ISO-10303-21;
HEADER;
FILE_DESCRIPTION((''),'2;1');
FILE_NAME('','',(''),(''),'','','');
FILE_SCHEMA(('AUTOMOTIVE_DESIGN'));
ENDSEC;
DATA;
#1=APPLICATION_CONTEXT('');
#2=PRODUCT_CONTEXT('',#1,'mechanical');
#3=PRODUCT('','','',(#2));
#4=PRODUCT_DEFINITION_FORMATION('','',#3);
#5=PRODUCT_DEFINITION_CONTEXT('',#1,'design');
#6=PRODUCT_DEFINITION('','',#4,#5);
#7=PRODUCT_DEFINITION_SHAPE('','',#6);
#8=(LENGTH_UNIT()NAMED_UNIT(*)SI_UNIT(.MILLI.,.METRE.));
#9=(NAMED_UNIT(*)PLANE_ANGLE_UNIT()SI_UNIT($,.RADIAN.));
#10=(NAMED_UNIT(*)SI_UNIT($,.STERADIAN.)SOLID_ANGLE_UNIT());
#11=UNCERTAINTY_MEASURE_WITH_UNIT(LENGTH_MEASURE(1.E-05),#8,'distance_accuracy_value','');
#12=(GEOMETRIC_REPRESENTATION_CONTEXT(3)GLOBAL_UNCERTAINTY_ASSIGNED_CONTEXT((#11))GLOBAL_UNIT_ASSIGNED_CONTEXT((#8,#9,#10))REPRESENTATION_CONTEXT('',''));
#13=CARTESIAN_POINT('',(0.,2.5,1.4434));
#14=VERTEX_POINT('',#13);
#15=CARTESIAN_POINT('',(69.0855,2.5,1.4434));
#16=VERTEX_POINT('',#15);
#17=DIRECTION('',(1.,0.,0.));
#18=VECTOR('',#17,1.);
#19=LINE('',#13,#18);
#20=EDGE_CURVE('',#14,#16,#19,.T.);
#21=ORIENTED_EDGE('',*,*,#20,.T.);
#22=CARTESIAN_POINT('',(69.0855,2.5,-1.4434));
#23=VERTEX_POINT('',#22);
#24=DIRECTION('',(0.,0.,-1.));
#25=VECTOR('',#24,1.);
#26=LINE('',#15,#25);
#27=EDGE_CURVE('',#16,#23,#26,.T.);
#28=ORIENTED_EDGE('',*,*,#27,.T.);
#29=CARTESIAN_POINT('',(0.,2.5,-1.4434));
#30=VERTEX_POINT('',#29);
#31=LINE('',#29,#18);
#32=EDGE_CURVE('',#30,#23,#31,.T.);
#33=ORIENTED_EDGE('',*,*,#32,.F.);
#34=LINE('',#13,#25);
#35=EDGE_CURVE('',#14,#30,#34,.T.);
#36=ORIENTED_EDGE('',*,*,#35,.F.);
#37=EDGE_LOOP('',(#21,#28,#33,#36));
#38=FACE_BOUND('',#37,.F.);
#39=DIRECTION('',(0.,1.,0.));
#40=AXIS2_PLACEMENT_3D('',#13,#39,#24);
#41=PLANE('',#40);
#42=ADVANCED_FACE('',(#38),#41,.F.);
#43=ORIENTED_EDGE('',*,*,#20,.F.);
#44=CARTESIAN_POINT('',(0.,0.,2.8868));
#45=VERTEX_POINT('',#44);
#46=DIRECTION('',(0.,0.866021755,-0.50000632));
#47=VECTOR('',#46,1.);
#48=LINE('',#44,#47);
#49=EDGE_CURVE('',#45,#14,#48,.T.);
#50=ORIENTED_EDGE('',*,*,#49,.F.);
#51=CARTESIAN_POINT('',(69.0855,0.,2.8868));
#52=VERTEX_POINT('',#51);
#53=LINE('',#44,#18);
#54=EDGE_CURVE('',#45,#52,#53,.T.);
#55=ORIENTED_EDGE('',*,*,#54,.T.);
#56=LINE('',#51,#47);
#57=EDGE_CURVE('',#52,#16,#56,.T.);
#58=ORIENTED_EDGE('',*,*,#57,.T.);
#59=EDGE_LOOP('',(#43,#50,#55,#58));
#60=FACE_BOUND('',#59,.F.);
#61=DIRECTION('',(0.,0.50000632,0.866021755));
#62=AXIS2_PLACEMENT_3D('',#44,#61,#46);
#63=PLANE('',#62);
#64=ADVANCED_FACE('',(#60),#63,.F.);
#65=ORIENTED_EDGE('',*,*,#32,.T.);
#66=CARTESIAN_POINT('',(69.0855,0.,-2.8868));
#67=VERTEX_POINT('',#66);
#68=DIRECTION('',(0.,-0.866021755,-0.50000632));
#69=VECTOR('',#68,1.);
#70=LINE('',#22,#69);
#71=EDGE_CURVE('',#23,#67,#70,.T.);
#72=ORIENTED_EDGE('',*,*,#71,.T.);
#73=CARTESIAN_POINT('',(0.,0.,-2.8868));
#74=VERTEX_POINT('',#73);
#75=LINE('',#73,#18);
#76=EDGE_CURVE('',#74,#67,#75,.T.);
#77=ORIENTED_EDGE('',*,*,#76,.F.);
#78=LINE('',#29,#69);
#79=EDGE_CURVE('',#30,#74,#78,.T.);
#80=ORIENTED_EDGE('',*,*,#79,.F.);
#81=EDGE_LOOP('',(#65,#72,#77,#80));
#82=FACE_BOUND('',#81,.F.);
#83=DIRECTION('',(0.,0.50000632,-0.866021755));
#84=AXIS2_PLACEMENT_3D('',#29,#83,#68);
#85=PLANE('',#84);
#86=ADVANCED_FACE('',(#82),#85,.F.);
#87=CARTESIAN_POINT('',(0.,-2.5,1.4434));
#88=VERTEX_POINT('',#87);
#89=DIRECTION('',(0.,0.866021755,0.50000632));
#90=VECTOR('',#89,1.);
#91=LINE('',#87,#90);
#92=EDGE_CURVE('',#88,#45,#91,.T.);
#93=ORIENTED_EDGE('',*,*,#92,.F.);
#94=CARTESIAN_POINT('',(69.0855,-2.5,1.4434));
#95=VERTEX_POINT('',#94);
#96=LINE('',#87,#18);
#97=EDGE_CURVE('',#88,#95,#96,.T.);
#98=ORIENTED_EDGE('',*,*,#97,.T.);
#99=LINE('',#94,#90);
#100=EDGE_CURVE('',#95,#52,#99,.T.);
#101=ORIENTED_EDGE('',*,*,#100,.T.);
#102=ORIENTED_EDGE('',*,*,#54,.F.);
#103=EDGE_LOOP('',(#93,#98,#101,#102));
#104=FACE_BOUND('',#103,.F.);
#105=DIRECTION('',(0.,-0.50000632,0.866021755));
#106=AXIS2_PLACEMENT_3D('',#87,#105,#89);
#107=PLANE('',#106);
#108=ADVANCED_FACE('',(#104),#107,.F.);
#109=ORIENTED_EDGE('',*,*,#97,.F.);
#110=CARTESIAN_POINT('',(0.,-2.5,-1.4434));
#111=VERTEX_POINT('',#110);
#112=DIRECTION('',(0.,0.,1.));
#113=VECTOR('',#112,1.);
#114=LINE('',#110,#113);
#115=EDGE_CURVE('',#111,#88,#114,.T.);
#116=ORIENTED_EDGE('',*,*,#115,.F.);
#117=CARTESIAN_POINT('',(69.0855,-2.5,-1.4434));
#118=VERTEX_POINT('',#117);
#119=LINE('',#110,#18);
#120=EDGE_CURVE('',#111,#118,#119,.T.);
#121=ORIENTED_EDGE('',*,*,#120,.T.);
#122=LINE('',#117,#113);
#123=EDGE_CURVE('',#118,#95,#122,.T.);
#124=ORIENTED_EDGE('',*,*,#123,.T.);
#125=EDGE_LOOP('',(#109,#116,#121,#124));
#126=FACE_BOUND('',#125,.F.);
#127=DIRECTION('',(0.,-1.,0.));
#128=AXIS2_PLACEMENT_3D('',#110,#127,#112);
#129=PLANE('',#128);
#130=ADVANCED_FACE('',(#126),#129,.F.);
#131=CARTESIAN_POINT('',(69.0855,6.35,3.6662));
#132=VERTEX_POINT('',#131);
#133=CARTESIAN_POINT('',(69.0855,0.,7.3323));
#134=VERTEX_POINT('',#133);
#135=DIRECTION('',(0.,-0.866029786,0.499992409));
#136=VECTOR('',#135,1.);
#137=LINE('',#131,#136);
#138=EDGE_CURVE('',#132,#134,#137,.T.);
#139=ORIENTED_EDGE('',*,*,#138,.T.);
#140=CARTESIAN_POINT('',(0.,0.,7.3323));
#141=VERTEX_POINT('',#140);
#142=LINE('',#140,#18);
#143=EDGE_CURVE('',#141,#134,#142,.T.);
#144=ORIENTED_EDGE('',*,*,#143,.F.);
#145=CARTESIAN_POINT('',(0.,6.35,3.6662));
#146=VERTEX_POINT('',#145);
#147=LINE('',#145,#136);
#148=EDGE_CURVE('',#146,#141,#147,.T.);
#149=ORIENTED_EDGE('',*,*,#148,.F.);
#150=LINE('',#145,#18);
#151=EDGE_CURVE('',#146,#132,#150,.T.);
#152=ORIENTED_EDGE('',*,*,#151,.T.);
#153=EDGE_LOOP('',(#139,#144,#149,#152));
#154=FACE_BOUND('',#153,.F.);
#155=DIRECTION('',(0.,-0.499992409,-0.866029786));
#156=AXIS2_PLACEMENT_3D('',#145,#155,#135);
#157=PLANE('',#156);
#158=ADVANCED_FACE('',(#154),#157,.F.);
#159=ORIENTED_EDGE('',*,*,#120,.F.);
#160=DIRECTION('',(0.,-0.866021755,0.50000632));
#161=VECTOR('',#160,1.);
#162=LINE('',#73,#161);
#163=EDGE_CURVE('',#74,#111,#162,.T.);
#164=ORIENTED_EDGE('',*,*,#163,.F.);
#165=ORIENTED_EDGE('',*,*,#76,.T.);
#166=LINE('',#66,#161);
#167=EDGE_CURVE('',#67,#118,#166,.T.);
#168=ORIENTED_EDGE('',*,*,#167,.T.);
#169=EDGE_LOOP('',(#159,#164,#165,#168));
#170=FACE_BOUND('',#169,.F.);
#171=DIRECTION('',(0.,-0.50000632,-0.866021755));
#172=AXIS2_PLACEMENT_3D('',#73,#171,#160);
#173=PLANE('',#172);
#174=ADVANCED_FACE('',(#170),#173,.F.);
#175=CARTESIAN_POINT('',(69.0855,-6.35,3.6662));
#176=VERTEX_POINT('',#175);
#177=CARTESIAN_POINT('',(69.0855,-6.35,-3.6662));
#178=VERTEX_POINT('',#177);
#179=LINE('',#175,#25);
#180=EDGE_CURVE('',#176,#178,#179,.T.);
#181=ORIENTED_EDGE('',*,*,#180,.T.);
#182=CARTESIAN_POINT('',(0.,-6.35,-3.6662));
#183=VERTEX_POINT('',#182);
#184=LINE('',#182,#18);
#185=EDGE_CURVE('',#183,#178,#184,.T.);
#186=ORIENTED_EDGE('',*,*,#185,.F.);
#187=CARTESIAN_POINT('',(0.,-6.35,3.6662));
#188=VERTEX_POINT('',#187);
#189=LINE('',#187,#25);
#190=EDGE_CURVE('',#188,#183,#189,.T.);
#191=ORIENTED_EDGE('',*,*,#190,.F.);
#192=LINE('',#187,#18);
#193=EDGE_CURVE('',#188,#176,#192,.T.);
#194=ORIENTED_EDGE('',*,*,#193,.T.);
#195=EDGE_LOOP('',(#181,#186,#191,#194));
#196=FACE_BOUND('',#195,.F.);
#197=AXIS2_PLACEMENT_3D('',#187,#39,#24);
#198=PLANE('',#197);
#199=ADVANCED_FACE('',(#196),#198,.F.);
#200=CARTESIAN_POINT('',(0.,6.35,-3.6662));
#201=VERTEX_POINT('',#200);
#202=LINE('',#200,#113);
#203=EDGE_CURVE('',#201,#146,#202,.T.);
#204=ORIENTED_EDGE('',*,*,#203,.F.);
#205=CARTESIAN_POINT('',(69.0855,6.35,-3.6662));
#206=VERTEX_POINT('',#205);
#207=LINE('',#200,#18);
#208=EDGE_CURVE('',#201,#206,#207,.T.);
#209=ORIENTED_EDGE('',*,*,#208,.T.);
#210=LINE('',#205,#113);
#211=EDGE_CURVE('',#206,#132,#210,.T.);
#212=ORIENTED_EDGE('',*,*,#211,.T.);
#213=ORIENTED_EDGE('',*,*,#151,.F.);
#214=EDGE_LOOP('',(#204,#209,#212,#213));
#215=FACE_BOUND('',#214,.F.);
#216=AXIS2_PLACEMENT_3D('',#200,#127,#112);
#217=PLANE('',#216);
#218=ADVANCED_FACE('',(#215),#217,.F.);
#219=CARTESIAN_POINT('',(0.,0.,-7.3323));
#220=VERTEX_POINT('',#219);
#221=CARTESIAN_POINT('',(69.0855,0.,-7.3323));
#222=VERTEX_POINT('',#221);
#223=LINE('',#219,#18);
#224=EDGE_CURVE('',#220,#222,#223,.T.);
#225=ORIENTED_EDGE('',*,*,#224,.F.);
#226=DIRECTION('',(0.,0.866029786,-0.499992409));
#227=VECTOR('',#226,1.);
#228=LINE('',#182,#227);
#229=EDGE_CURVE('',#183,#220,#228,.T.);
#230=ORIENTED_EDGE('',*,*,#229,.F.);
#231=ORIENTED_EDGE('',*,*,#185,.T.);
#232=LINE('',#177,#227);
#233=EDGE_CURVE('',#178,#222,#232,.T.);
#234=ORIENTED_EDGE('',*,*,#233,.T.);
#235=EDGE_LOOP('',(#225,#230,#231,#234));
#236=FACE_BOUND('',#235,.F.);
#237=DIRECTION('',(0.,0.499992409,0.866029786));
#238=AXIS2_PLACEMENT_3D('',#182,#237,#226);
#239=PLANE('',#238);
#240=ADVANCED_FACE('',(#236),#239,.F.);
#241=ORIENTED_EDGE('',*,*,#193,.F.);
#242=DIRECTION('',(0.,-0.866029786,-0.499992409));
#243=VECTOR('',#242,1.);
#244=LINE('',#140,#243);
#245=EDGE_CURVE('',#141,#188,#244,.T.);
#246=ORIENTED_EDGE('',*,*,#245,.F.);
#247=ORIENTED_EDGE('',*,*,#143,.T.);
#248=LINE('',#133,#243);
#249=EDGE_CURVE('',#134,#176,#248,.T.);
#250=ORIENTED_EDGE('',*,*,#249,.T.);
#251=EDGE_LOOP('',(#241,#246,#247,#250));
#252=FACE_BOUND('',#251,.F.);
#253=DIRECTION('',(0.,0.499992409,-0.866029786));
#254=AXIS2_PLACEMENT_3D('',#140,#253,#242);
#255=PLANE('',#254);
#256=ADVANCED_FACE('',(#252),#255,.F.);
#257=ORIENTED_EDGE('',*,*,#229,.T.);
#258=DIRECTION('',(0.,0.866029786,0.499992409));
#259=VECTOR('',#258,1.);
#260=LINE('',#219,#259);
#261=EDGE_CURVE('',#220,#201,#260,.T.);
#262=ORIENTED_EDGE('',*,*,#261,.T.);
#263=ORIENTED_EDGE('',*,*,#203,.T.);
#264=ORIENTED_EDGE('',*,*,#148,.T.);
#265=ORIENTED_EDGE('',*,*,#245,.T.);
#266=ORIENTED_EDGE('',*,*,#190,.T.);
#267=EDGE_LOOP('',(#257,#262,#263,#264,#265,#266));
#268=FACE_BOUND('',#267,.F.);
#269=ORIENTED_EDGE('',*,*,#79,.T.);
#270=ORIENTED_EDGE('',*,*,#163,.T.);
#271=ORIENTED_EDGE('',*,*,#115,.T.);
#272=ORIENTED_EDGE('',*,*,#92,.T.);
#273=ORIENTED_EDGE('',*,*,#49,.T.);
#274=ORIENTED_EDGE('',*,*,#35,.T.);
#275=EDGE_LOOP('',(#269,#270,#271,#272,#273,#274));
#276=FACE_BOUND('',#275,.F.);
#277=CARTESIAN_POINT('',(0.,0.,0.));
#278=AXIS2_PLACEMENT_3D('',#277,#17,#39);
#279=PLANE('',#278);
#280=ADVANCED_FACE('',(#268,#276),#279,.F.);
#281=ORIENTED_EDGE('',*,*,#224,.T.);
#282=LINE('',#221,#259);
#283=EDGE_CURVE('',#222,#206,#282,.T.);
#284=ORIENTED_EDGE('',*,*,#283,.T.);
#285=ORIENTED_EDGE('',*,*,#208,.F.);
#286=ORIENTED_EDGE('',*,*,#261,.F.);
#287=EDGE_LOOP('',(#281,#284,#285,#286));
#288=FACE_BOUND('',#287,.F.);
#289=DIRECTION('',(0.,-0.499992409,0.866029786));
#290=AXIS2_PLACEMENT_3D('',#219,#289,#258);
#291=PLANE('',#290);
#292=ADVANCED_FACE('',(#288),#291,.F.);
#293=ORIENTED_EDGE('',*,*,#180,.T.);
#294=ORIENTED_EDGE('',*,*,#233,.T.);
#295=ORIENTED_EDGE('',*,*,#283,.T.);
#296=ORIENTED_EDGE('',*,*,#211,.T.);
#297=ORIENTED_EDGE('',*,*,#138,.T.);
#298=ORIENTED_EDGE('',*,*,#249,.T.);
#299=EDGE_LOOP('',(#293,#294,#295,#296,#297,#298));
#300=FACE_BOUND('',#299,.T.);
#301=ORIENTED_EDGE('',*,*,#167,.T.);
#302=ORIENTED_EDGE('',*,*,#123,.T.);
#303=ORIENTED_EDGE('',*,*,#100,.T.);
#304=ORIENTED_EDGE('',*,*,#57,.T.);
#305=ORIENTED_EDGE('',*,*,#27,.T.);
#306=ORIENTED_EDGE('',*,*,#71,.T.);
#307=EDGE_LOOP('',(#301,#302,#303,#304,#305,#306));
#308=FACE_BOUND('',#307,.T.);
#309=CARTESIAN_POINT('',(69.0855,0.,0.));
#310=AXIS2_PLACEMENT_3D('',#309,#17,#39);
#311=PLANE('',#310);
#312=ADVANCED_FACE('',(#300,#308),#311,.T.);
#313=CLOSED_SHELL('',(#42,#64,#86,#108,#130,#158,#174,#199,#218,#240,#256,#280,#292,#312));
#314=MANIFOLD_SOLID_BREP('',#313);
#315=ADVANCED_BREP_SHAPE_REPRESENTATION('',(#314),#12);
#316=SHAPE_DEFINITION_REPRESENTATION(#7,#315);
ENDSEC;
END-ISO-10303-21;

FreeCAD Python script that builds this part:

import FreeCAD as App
import Part
import Sketcher
Q = App.Units.Quantity


def add_polygon(sketch, points):
    """Adds a closed chain of lines whose ends are joined by coincident constraints."""
    first, n = sketch.GeometryCount, len(points)
    for a, b in zip(points, points[1:] + points[:1]):
        sketch.addGeometry(Part.LineSegment(App.Vector(*a, 0), App.Vector(*b, 0)), False)
    for i in range(n):
        sketch.addConstraint(Sketcher.Constraint("Coincident", first + i, 2, first + (i + 1) % n, 1))

doc = App.newDocument("Part")
body = doc.addObject("PartDesign::Body", "Body")

# Sketch on YZ plane
sketch1 = body.newObject("Sketcher::SketchObject", "Sketch")
sketch1.AttachmentSupport = (doc.getObject("YZ_Plane"), [""])
sketch1.MapMode = "FlatFace"
add_polygon(sketch1, [(-6.35, 3.6662), (-6.35, -3.6662), (0, -7.3323), (6.35, -3.6662), (6.35, 3.6662), (0, 7.3323)])  # lines 0-5
add_polygon(sketch1, [(2.5, 1.4434), (2.5, -1.4434), (0, -2.8868), (-2.5, -1.4434), (-2.5, 1.4434), (0, 2.8868)])  # lines 6-11
sketch1.addConstraint([
    Sketcher.Constraint("Vertical", 0),
    Sketcher.Constraint("Vertical", 3),
    Sketcher.Constraint("Vertical", 6),
    Sketcher.Constraint("Vertical", 9),
    Sketcher.Constraint("Symmetric", 0, 2, 3, 2, -1, 1),
    Sketcher.Constraint("Symmetric", 1, 2, 4, 2, -1, 1),
    Sketcher.Constraint("Symmetric", 6, 2, 9, 2, -1, 1),
    Sketcher.Constraint("Symmetric", 7, 2, 10, 2, -1, 1),
    Sketcher.Constraint("PointOnObject", 1, 2, -2),
    Sketcher.Constraint("PointOnObject", 7, 2, -2),
    Sketcher.Constraint("Parallel", 2, 5),
    Sketcher.Constraint("Parallel", 5, 7),
    Sketcher.Constraint("Parallel", 4, 8),
    Sketcher.Constraint("Parallel", 8, 11),
    Sketcher.Constraint("Horizontal", 0, 2, 2, 2),
    Sketcher.Constraint("DistanceX", 8, 2, 6, 2, Q("5 mm")),
    Sketcher.Constraint("Angle", 1, Q("-29.9995 deg")),
    Sketcher.Constraint("DistanceX", 0, 2, 2, 2, Q("12.7 mm")),
    Sketcher.Constraint("DistanceY", 0, 2, 0, 1, Q("7.3324 mm")),
    Sketcher.Constraint("DistanceY", 6, 2, 6, 1, Q("2.8868 mm")),
])
pad1 = body.newObject("PartDesign::Pad", "Pad")
pad1.Profile = sketch1
pad1.Length = 69.0855

doc.recompute()
